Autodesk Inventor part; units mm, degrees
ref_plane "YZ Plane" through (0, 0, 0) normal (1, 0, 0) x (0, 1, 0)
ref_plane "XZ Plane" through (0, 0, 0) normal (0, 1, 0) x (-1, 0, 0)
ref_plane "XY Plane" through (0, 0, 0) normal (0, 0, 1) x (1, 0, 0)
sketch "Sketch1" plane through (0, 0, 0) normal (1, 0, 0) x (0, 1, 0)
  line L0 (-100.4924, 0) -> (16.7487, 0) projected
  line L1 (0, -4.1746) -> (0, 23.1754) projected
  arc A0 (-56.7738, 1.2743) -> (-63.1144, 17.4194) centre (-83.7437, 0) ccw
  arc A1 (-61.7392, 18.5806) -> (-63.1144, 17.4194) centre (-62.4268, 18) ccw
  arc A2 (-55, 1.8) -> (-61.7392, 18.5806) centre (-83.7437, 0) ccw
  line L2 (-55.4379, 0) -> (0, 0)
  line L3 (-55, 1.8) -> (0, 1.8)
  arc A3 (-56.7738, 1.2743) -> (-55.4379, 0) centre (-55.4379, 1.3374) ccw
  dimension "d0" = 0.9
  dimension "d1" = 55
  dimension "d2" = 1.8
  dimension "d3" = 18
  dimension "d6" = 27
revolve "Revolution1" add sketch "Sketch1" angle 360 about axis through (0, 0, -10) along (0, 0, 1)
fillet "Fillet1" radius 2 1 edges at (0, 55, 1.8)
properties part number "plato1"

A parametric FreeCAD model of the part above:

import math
import FreeCAD as App
import Part
import Sketcher
from FreeCAD import Vector
Q = App.Units.Quantity


def edges_at(feature, points):
    """Names of the edges that pass closest to the given points."""
    edges = feature.Shape.Edges
    near = lambda p: min(range(len(edges)), key=lambda i: edges[i].distToShape(Part.Vertex(*p))[0])
    return sorted({f"Edge{near(p) + 1}" for p in points})

doc = App.newDocument("Part")
params = doc.addObject("Spreadsheet::Sheet", "Params")
for row, (alias, value) in enumerate([
    ("sketch1_radius", "27 mm"),
    ("sketch1_radius2", "0.9 mm"),
    ("sketch1_width", "55 mm"),
    ("sketch1_height", "1.8 mm"),
    ("revolution_angle", "360 deg"),
    ("fillet_radius", "2 mm"),
], start=1):
    params.set(f"A{row}", alias)
    params.set(f"B{row}", "=" + value)
    params.setAlias(f"B{row}", alias)

body = doc.addObject("PartDesign::Body", "Body")

# Sketch on YZ plane
sketch1 = body.newObject("Sketcher::SketchObject", "Sketch")
sketch1.AttachmentSupport = (doc.getObject("YZ_Plane"), [""])
sketch1.MapMode = "FlatFace"
sketch1.addGeometry([
    Part.ArcOfCircle(Part.Circle(Vector(-55.4, 1.3, 0), Vector(0, 0, 1), 1.3), math.radians(-177), math.radians(-90)),  # 0
    Part.LineSegment(Vector(-55.4, 0, 0), Vector(0, 0, 0)),  # 1
    Part.LineSegment(Vector(0, 0, 0), Vector(0, 1.8, 0)),  # 2
    Part.LineSegment(Vector(0, 1.8, 0), Vector(-55, 1.8, 0)),  # 3
    Part.ArcOfCircle(Part.Circle(Vector(-83.7, 0, 0), Vector(0, 0, 1), 28.8), math.radians(4), math.radians(40)),  # 4
    Part.ArcOfCircle(Part.Circle(Vector(-62.4, 18, 0), Vector(0, 0, 1), 0.9), math.radians(40), math.radians(220)),  # 5
    Part.ArcOfCircle(Part.Circle(Vector(-83.7, 0, 0), Vector(0, 0, 1), 27), math.radians(3), math.radians(40)),  # 6
], False)
sketch1.addConstraint([
    Sketcher.Constraint("Tangent", 0, 2, 1, 1),
    Sketcher.Constraint("Coincident", 1, 2, 2, 1),
    Sketcher.Constraint("Coincident", 2, 2, 3, 1),
    Sketcher.Constraint("Coincident", 3, 2, 4, 1),
    Sketcher.Constraint("Tangent", 4, 2, 5, 1),
    Sketcher.Constraint("Tangent", 5, 2, 6, 2),
    Sketcher.Constraint("Tangent", 6, 1, 0, 1),
    Sketcher.Constraint("Horizontal", 1),
    Sketcher.Constraint("Vertical", 2),
    Sketcher.Constraint("Horizontal", 3),
    Sketcher.Constraint("Coincident", 1, 2, -1, 1),
    Sketcher.Constraint("Coincident", 6, 3, 4, 3),
    Sketcher.Constraint("PointOnObject", 4, 3, -1),
    Sketcher.Constraint("Radius", 6, Q("27 mm")),
    Sketcher.Constraint("Radius", 5, Q("0.9 mm")),
    Sketcher.Constraint("DistanceX", 3, 2, 3, 1, Q("55 mm")),
    Sketcher.Constraint("DistanceY", 2, 1, 2, 2, Q("1.8 mm")),
    Sketcher.Constraint("DistanceY", -1, 1, 5, 3, Q("18 mm")),
    Sketcher.Constraint("Radius", 0, Q("1.3374 mm")),
])
sketch1.setExpression("Constraints[13]", "Params.sketch1_radius")
sketch1.setExpression("Constraints[14]", "Params.sketch1_radius2")
sketch1.setExpression("Constraints[15]", "Params.sketch1_width")
sketch1.setExpression("Constraints[16]", "Params.sketch1_height")
revolution = body.newObject("PartDesign::Revolution", "Revolution")
revolution.Profile = sketch1
revolution.ReferenceAxis = (sketch1, ["V_Axis"])
revolution.setExpression("Angle", "Params.revolution_angle")
doc.recompute()

fillet = body.newObject("PartDesign::Fillet", "Fillet")
fillet.Base = (revolution, edges_at(revolution, [(0, 55, 1.8)]))
fillet.setExpression("Radius", "Params.fillet_radius")

doc.recompute()
